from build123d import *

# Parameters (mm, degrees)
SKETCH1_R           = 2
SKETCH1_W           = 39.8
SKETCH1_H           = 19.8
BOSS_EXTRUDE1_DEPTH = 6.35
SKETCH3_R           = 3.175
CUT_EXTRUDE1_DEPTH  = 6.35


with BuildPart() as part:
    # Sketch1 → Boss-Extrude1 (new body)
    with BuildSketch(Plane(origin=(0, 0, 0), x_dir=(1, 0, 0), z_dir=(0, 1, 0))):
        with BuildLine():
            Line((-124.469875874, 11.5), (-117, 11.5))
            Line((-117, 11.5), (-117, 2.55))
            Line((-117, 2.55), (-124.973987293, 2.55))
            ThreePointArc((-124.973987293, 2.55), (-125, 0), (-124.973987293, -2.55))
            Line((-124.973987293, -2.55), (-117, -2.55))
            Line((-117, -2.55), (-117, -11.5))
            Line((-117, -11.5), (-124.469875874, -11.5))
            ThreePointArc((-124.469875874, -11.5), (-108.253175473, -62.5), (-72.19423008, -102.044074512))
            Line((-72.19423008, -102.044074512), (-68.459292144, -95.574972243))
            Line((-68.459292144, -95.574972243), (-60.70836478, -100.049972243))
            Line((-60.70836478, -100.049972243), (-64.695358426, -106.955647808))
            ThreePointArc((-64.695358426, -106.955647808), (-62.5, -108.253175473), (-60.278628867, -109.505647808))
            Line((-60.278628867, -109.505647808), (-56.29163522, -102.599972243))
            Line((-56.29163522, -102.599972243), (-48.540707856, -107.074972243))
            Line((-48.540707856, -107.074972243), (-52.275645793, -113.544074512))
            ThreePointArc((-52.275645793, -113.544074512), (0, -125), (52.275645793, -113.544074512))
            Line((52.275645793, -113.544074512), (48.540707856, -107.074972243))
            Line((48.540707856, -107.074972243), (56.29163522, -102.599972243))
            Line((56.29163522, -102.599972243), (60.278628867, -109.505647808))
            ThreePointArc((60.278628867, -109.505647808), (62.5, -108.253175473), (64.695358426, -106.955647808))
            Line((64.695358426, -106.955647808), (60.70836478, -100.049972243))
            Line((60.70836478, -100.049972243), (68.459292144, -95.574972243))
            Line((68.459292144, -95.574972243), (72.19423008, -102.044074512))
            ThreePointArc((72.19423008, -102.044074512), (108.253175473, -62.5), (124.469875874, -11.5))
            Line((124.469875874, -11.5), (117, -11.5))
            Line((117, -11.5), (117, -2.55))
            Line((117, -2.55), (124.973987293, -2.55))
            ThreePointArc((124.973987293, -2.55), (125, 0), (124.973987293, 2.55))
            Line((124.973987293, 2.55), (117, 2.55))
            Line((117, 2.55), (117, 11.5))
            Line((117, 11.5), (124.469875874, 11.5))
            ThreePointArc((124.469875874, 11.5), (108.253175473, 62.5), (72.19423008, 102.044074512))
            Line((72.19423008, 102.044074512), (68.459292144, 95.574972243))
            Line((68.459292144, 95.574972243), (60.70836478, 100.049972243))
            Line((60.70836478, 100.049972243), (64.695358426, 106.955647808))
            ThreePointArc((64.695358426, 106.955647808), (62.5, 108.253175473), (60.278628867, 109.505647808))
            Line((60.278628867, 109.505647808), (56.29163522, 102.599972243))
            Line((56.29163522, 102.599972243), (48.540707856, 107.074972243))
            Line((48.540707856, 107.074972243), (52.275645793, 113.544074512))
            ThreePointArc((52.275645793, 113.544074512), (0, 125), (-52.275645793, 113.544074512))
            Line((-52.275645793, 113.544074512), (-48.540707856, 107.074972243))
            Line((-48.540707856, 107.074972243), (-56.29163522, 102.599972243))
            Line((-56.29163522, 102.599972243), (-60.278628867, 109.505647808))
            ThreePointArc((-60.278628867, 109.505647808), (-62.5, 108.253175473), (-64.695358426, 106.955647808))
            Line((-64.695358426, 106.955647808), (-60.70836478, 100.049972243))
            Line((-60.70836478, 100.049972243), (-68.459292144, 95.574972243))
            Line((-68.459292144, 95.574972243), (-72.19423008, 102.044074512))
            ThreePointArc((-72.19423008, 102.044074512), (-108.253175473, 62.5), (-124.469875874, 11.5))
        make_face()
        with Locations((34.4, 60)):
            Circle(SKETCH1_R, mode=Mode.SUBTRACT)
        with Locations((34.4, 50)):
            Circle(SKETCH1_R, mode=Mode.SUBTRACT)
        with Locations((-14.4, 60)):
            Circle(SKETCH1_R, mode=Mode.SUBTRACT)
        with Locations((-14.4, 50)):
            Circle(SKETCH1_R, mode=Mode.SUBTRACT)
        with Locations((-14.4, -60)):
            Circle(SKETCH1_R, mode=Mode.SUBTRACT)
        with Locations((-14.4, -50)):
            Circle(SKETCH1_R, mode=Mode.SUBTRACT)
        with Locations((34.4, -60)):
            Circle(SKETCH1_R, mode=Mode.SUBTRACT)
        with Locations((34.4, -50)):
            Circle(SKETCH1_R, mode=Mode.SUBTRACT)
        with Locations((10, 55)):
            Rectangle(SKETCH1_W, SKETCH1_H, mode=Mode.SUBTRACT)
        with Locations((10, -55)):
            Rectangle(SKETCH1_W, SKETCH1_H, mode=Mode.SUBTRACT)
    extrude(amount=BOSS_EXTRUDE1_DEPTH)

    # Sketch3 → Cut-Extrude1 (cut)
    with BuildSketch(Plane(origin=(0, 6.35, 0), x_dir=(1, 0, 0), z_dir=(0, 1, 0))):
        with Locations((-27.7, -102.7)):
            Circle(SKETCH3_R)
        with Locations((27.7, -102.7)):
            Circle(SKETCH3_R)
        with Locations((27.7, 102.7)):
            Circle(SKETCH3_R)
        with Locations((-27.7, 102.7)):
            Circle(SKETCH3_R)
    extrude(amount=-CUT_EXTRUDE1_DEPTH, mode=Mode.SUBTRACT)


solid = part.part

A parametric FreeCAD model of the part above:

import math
import FreeCAD as App
import Part
import Sketcher

V = App.Vector
Q = App.Units.Quantity

doc = App.newDocument("Part")
body = doc.addObject("PartDesign::Body", "Body")

sketch1 = body.newObject("Sketcher::SketchObject", "Sketch")
sketch1.AttachmentSupport = (doc.getObject("XZ_Plane"), [""])
sketch1.MapMode = "FlatFace"
sketch1.addGeometry([
    Part.LineSegment(V(-124.5, -11.5, 0), V(-117, -11.5, 0)),
    Part.LineSegment(V(-117, -11.5, 0), V(-117, -2.5, 0)),
    Part.LineSegment(V(-117, -2.5, 0), V(-125, -2.5, 0)),
    Part.ArcOfCircle(Part.Circle(V(0, 0, 0), V(0, 0, 1), 125), math.radians(178.83), math.radians(181.17)),
    Part.LineSegment(V(-125, 2.5, 0), V(-117, 2.5, 0)),
    Part.LineSegment(V(-117, 2.5, 0), V(-117, 11.5, 0)),
    Part.LineSegment(V(-117, 11.5, 0), V(-124.5, 11.5, 0)),
    Part.ArcOfCircle(Part.Circle(V(0, 0, 0), V(0, 0, 1), 125), math.radians(125), math.radians(175)),
    Part.LineSegment(V(-72.2, 102, 0), V(-68.5, 95.6, 0)),
    Part.LineSegment(V(-68.5, 95.6, 0), V(-60.7, 100, 0)),
    Part.LineSegment(V(-60.7, 100, 0), V(-64.7, 107, 0)),
    Part.ArcOfCircle(Part.Circle(V(0, 0, 0), V(0, 0, 1), 125), math.radians(118.83), math.radians(121.17)),
    Part.LineSegment(V(-60.3, 109.5, 0), V(-56.3, 102.6, 0)),
    Part.LineSegment(V(-56.3, 102.6, 0), V(-48.5, 107.1, 0)),
    Part.LineSegment(V(-48.5, 107.1, 0), V(-52.3, 113.5, 0)),
    Part.ArcOfCircle(Part.Circle(V(0, 0, 0), V(0, 0, 1), 125), math.radians(65), math.radians(115)),
    Part.LineSegment(V(52.3, 113.5, 0), V(48.5, 107.1, 0)),
    Part.LineSegment(V(48.5, 107.1, 0), V(56.3, 102.6, 0)),
    Part.LineSegment(V(56.3, 102.6, 0), V(60.3, 109.5, 0)),
    Part.ArcOfCircle(Part.Circle(V(0, 0, 0), V(0, 0, 1), 125), math.radians(58.83), math.radians(61.17)),
    Part.LineSegment(V(64.7, 107, 0), V(60.7, 100, 0)),
    Part.LineSegment(V(60.7, 100, 0), V(68.5, 95.6, 0)),
    Part.LineSegment(V(68.5, 95.6, 0), V(72.2, 102, 0)),
    Part.ArcOfCircle(Part.Circle(V(0, 0, 0), V(0, 0, 1), 125), math.radians(5), math.radians(55)),
    Part.LineSegment(V(124.5, 11.5, 0), V(117, 11.5, 0)),
    Part.LineSegment(V(117, 11.5, 0), V(117, 2.5, 0)),
    Part.LineSegment(V(117, 2.5, 0), V(125, 2.5, 0)),
    Part.ArcOfCircle(Part.Circle(V(0, 0, 0), V(0, 0, 1), 125), math.radians(-1.17), math.radians(1.17)),
    Part.LineSegment(V(125, -2.5, 0), V(117, -2.5, 0)),
    Part.LineSegment(V(117, -2.5, 0), V(117, -11.5, 0)),
    Part.LineSegment(V(117, -11.5, 0), V(124.5, -11.5, 0)),
    Part.ArcOfCircle(Part.Circle(V(0, 0, 0), V(0, 0, 1), 125), math.radians(-55), math.radians(-5)),
    Part.LineSegment(V(72.2, -102, 0), V(68.5, -95.6, 0)),
    Part.LineSegment(V(68.5, -95.6, 0), V(60.7, -100, 0)),
    Part.LineSegment(V(60.7, -100, 0), V(64.7, -107, 0)),
    Part.ArcOfCircle(Part.Circle(V(0, 0, 0), V(0, 0, 1), 125), math.radians(-61.17), math.radians(-58.83)),
    Part.LineSegment(V(60.3, -109.5, 0), V(56.3, -102.6, 0)),
    Part.LineSegment(V(56.3, -102.6, 0), V(48.5, -107.1, 0)),
    Part.LineSegment(V(48.5, -107.1, 0), V(52.3, -113.5, 0)),
    Part.ArcOfCircle(Part.Circle(V(0, 0, 0), V(0, 0, 1), 125), math.radians(-115), math.radians(-65)),
    Part.LineSegment(V(-52.3, -113.5, 0), V(-48.5, -107.1, 0)),
    Part.LineSegment(V(-48.5, -107.1, 0), V(-56.3, -102.6, 0)),
    Part.LineSegment(V(-56.3, -102.6, 0), V(-60.3, -109.5, 0)),
    Part.ArcOfCircle(Part.Circle(V(0, 0, 0), V(0, 0, 1), 125), math.radians(-121.17), math.radians(-118.83)),
    Part.LineSegment(V(-64.7, -107, 0), V(-60.7, -100, 0)),
    Part.LineSegment(V(-60.7, -100, 0), V(-68.5, -95.6, 0)),
    Part.LineSegment(V(-68.5, -95.6, 0), V(-72.2, -102, 0)),
    Part.ArcOfCircle(Part.Circle(V(0, 0, 0), V(0, 0, 1), 125), math.radians(-175), math.radians(-125)),
    Part.Circle(V(-14.4, 60, 0), V(0, 0, 1), 2),
    Part.Circle(V(-14.4, 50, 0), V(0, 0, 1), 2),
    Part.LineSegment(V(29.9, 64.9, 0), V(-9.9, 64.9, 0)),
    Part.LineSegment(V(-9.9, 64.9, 0), V(-9.9, 45.1, 0)),
    Part.LineSegment(V(-9.9, 45.1, 0), V(29.9, 45.1, 0)),
    Part.LineSegment(V(29.9, 45.1, 0), V(29.9, 64.9, 0)),
    Part.Circle(V(34.4, 60, 0), V(0, 0, 1), 2),
    Part.Circle(V(34.4, 50, 0), V(0, 0, 1), 2),
    Part.Circle(V(-14.4, -50, 0), V(0, 0, 1), 2),
    Part.Circle(V(-14.4, -60, 0), V(0, 0, 1), 2),
    Part.LineSegment(V(29.9, -45.1, 0), V(-9.9, -45.1, 0)),
    Part.LineSegment(V(-9.9, -45.1, 0), V(-9.9, -64.9, 0)),
    Part.LineSegment(V(-9.9, -64.9, 0), V(29.9, -64.9, 0)),
    Part.LineSegment(V(29.9, -64.9, 0), V(29.9, -45.1, 0)),
    Part.Circle(V(34.4, -50, 0), V(0, 0, 1), 2),
    Part.Circle(V(34.4, -60, 0), V(0, 0, 1), 2),
], False)
sketch1.addConstraint([
    Sketcher.Constraint("Coincident", 0, 2, 1, 1),
    Sketcher.Constraint("Coincident", 1, 2, 2, 1),
    Sketcher.Constraint("Coincident", 2, 2, 3, 2),
    Sketcher.Constraint("Coincident", 3, 1, 4, 1),
    Sketcher.Constraint("Coincident", 4, 2, 5, 1),
    Sketcher.Constraint("Coincident", 5, 2, 6, 1),
    Sketcher.Constraint("Coincident", 6, 2, 7, 2),
    Sketcher.Constraint("Coincident", 7, 1, 8, 1),
    Sketcher.Constraint("Coincident", 8, 2, 9, 1),
    Sketcher.Constraint("Coincident", 9, 2, 10, 1),
    Sketcher.Constraint("Coincident", 10, 2, 11, 2),
    Sketcher.Constraint("Coincident", 11, 1, 12, 1),
    Sketcher.Constraint("Coincident", 12, 2, 13, 1),
    Sketcher.Constraint("Coincident", 13, 2, 14, 1),
    Sketcher.Constraint("Coincident", 14, 2, 15, 2),
    Sketcher.Constraint("Coincident", 15, 1, 16, 1),
    Sketcher.Constraint("Coincident", 16, 2, 17, 1),
    Sketcher.Constraint("Coincident", 17, 2, 18, 1),
    Sketcher.Constraint("Coincident", 18, 2, 19, 2),
    Sketcher.Constraint("Coincident", 19, 1, 20, 1),
    Sketcher.Constraint("Coincident", 20, 2, 21, 1),
    Sketcher.Constraint("Coincident", 21, 2, 22, 1),
    Sketcher.Constraint("Coincident", 22, 2, 23, 2),
    Sketcher.Constraint("Coincident", 23, 1, 24, 1),
    Sketcher.Constraint("Coincident", 24, 2, 25, 1),
    Sketcher.Constraint("Coincident", 25, 2, 26, 1),
    Sketcher.Constraint("Coincident", 26, 2, 27, 2),
    Sketcher.Constraint("Coincident", 27, 1, 28, 1),
    Sketcher.Constraint("Coincident", 28, 2, 29, 1),
    Sketcher.Constraint("Coincident", 29, 2, 30, 1),
    Sketcher.Constraint("Coincident", 30, 2, 31, 2),
    Sketcher.Constraint("Coincident", 31, 1, 32, 1),
    Sketcher.Constraint("Coincident", 32, 2, 33, 1),
    Sketcher.Constraint("Coincident", 33, 2, 34, 1),
    Sketcher.Constraint("Coincident", 34, 2, 35, 2),
    Sketcher.Constraint("Coincident", 35, 1, 36, 1),
    Sketcher.Constraint("Coincident", 36, 2, 37, 1),
    Sketcher.Constraint("Coincident", 37, 2, 38, 1),
    Sketcher.Constraint("Coincident", 38, 2, 39, 2),
    Sketcher.Constraint("Coincident", 39, 1, 40, 1),
    Sketcher.Constraint("Coincident", 40, 2, 41, 1),
    Sketcher.Constraint("Coincident", 41, 2, 42, 1),
    Sketcher.Constraint("Coincident", 42, 2, 43, 2),
    Sketcher.Constraint("Coincident", 43, 1, 44, 1),
    Sketcher.Constraint("Coincident", 44, 2, 45, 1),
    Sketcher.Constraint("Coincident", 45, 2, 46, 1),
    Sketcher.Constraint("Coincident", 46, 2, 47, 2),
    Sketcher.Constraint("Coincident", 47, 1, 0, 1),
    Sketcher.Constraint("Coincident", 50, 2, 51, 1),
    Sketcher.Constraint("Coincident", 51, 2, 52, 1),
    Sketcher.Constraint("Coincident", 52, 2, 53, 1),
    Sketcher.Constraint("Coincident", 53, 2, 50, 1),
    Sketcher.Constraint("Coincident", 58, 2, 59, 1),
    Sketcher.Constraint("Coincident", 59, 2, 60, 1),
    Sketcher.Constraint("Coincident", 60, 2, 61, 1),
    Sketcher.Constraint("Coincident", 61, 2, 58, 1),
    Sketcher.Constraint("Horizontal", 0),
    Sketcher.Constraint("Vertical", 1),
    Sketcher.Constraint("Horizontal", 2),
    Sketcher.Constraint("Horizontal", 4),
    Sketcher.Constraint("Vertical", 5),
    Sketcher.Constraint("Horizontal", 6),
    Sketcher.Constraint("Horizontal", 24),
    Sketcher.Constraint("Vertical", 25),
    Sketcher.Constraint("Horizontal", 26),
    Sketcher.Constraint("Horizontal", 28),
    Sketcher.Constraint("Vertical", 29),
    Sketcher.Constraint("Horizontal", 30),
    Sketcher.Constraint("Horizontal", 50),
    Sketcher.Constraint("Vertical", 51),
    Sketcher.Constraint("Horizontal", 52),
    Sketcher.Constraint("Vertical", 53),
    Sketcher.Constraint("Horizontal", 58),
    Sketcher.Constraint("Vertical", 59),
    Sketcher.Constraint("Horizontal", 60),
    Sketcher.Constraint("Vertical", 61),
    Sketcher.Constraint("Coincident", 3, 3, -1, 1),
    Sketcher.Constraint("Coincident", 7, 3, -1, 1),
    Sketcher.Constraint("Coincident", 11, 3, -1, 1),
    Sketcher.Constraint("Coincident", 15, 3, -1, 1),
    Sketcher.Constraint("Coincident", 19, 3, -1, 1),
    Sketcher.Constraint("Coincident", 23, 3, -1, 1),
    Sketcher.Constraint("Coincident", 27, 3, -1, 1),
    Sketcher.Constraint("Coincident", 31, 3, -1, 1),
    Sketcher.Constraint("Coincident", 35, 3, -1, 1),
    Sketcher.Constraint("Coincident", 39, 3, -1, 1),
    Sketcher.Constraint("Coincident", 43, 3, -1, 1),
    Sketcher.Constraint("Coincident", 47, 3, -1, 1),
    Sketcher.Constraint("Equal", 3, 7),
    Sketcher.Constraint("Equal", 7, 11),
    Sketcher.Constraint("Equal", 11, 15),
    Sketcher.Constraint("Equal", 15, 19),
    Sketcher.Constraint("Equal", 19, 23),
    Sketcher.Constraint("Equal", 23, 27),
    Sketcher.Constraint("Equal", 27, 31),
    Sketcher.Constraint("Equal", 31, 35),
    Sketcher.Constraint("Equal", 35, 39),
    Sketcher.Constraint("Equal", 39, 43),
    Sketcher.Constraint("Equal", 43, 47),
    Sketcher.Constraint("Equal", 48, 49),
    Sketcher.Constraint("Equal", 49, 54),
    Sketcher.Constraint("Equal", 54, 55),
    Sketcher.Constraint("Equal", 55, 56),
    Sketcher.Constraint("Equal", 56, 57),
    Sketcher.Constraint("Equal", 57, 62),
    Sketcher.Constraint("Equal", 62, 63),
    Sketcher.Constraint("Symmetric", 0, 2, 24, 2, -1, 1),
    Sketcher.Constraint("Symmetric", 4, 2, 28, 2, -1, 1),
    Sketcher.Constraint("Symmetric", 8, 2, 32, 2, -1, 1),
    Sketcher.Constraint("Symmetric", 9, 2, 33, 2, -1, 1),
    Sketcher.Constraint("Symmetric", 12, 2, 36, 2, -1, 1),
    Sketcher.Constraint("Symmetric", 13, 2, 37, 2, -1, 1),
    Sketcher.Constraint("Symmetric", 16, 2, 40, 2, -1, 1),
    Sketcher.Constraint("Symmetric", 17, 2, 41, 2, -1, 1),
    Sketcher.Constraint("Symmetric", 20, 2, 44, 2, -1, 1),
    Sketcher.Constraint("Symmetric", 21, 2, 45, 2, -1, 1),
    Sketcher.Constraint("Symmetric", 13, 2, 16, 2, -2),
    Sketcher.Constraint("Symmetric", 12, 2, 17, 2, -2),
    Sketcher.Constraint("Symmetric", 9, 2, 20, 2, -2),
    Sketcher.Constraint("Symmetric", 8, 2, 21, 2, -2),
    Sketcher.Constraint("Symmetric", 5, 2, 24, 2, -2),
    Sketcher.Constraint("Symmetric", 49, 3, 56, 3, -1),
    Sketcher.Constraint("Symmetric", 48, 3, 57, 3, -1),
    Sketcher.Constraint("Symmetric", 55, 3, 62, 3, -1),
    Sketcher.Constraint("Symmetric", 54, 3, 63, 3, -1),
    Sketcher.Constraint("Symmetric", 51, 2, 58, 2, -1),
    Sketcher.Constraint("Symmetric", 53, 2, 60, 2, -1),
    Sketcher.Constraint("Perpendicular", 8, 9),
    Sketcher.Constraint("Perpendicular", 9, 10),
    Sketcher.Constraint("Parallel", 10, 12),
    Sketcher.Constraint("Perpendicular", 12, 13),
    Sketcher.Constraint("Perpendicular", 13, 14),
    Sketcher.Constraint("Perpendicular", 16, 17),
    Sketcher.Constraint("Perpendicular", 17, 18),
    Sketcher.Constraint("Parallel", 18, 20),
    Sketcher.Constraint("Perpendicular", 21, 22),
    Sketcher.Constraint("Parallel", 14, 32),
    Sketcher.Constraint("Perpendicular", 33, 34),
    Sketcher.Constraint("Parallel", 34, 36),
    Sketcher.Constraint("Perpendicular", 37, 38),
    Sketcher.Constraint("Parallel", 22, 40),
    Sketcher.Constraint("Perpendicular", 41, 42),
    Sketcher.Constraint("Parallel", 42, 44),
    Sketcher.Constraint("Perpendicular", 45, 46),
    Sketcher.Constraint("Horizontal", 48, 3, 54, 3),
    Sketcher.Constraint("Horizontal", 49, 3, 55, 3),
    Sketcher.Constraint("Horizontal", 4, 2, 25, 2),
    Sketcher.Constraint("Horizontal", 2, 2, 27, 1),
    Sketcher.Constraint("Horizontal", 0, 2, 29, 2),
    Sketcher.Constraint("Vertical", 48, 3, 49, 3),
    Sketcher.Constraint("Vertical", 54, 3, 55, 3),
    Sketcher.Constraint("Equal", 10, 12),
    Sketcher.Constraint("Equal", 9, 13),
    Sketcher.Constraint("Equal", 8, 14),
    Sketcher.Constraint("Diameter", 48, Q("4 mm")),
    Sketcher.Constraint("Radius", 3, Q("124.999998 mm")),
    Sketcher.Constraint("Angle", 8, Q("-60 deg")),
    Sketcher.Constraint("DistanceX", 50, 2, 50, 1, Q("39.8 mm")),
    Sketcher.Constraint("DistanceY", 51, 2, 51, 1, Q("19.8 mm")),
    Sketcher.Constraint("DistanceY", -1, 1, 48, 3, Q("60 mm")),
    Sketcher.Constraint("DistanceY", -1, 1, 49, 3, Q("50 mm")),
    Sketcher.Constraint("DistanceX", 0, 2, -1, 1, Q("117 mm")),
    Sketcher.Constraint("DistanceY", 1, 1, 1, 2, Q("8.95 mm")),
    Sketcher.Constraint("DistanceX", 48, 3, -1, 1, Q("14.4 mm")),
    Sketcher.Constraint("DistanceX", -1, 1, 54, 3, Q("34.4 mm")),
    Sketcher.Constraint("DistanceY", 0, 2, -1, 1, Q("11.5 mm")),
    Sketcher.Constraint("DistanceX", 50, 2, -1, 1, Q("9.9 mm")),
    Sketcher.Constraint("DistanceY", -1, 1, 50, 2, Q("64.9 mm")),
    Sketcher.Constraint("Distance", 9, Q("8.95 mm")),
    Sketcher.Constraint("DistanceX", 10, 2, -1, 1, Q("64.695358 mm")),
    Sketcher.Constraint("Distance", 8, Q("7.469876 mm")),
])
pad1 = body.newObject("PartDesign::Pad", "Pad")
pad1.Profile = sketch1
pad1.Length = 6.35
pad1.Reversed = True

sketch2 = body.newObject("Sketcher::SketchObject", "Sketch001")
sketch2.AttachmentSupport = (doc.getObject("XZ_Plane"), [""])
sketch2.MapMode = "FlatFace"
sketch2.AttachmentOffset = App.Placement(V(0, 0, -6.35), App.Rotation())
sketch2.addGeometry([
    Part.Circle(V(-27.7, 102.7, 0), V(0, 0, 1), 3.2),
    Part.Circle(V(27.7, 102.7, 0), V(0, 0, 1), 3.2),
    Part.Circle(V(27.7, -102.7, 0), V(0, 0, 1), 3.2),
    Part.Circle(V(-27.7, -102.7, 0), V(0, 0, 1), 3.2),
], False)
sketch2.addConstraint([
    Sketcher.Constraint("Equal", 0, 1),
    Sketcher.Constraint("Equal", 1, 2),
    Sketcher.Constraint("Equal", 2, 3),
    Sketcher.Constraint("Symmetric", 0, 3, 2, 3, -1, 1),
    Sketcher.Constraint("Symmetric", 1, 3, 3, 3, -1, 1),
    Sketcher.Constraint("Symmetric", 0, 3, 1, 3, -2),
    Sketcher.Constraint("Diameter", 0, Q("6.35 mm")),
    Sketcher.Constraint("DistanceX", 0, 3, -1, 1, Q("27.7 mm")),
    Sketcher.Constraint("DistanceY", -1, 1, 0, 3, Q("102.7 mm")),
])
pocket1 = body.newObject("PartDesign::Pocket", "Pocket")
pocket1.Profile = sketch2
pocket1.Length = 6.35
pocket1.Reversed = True

doc.recompute()
